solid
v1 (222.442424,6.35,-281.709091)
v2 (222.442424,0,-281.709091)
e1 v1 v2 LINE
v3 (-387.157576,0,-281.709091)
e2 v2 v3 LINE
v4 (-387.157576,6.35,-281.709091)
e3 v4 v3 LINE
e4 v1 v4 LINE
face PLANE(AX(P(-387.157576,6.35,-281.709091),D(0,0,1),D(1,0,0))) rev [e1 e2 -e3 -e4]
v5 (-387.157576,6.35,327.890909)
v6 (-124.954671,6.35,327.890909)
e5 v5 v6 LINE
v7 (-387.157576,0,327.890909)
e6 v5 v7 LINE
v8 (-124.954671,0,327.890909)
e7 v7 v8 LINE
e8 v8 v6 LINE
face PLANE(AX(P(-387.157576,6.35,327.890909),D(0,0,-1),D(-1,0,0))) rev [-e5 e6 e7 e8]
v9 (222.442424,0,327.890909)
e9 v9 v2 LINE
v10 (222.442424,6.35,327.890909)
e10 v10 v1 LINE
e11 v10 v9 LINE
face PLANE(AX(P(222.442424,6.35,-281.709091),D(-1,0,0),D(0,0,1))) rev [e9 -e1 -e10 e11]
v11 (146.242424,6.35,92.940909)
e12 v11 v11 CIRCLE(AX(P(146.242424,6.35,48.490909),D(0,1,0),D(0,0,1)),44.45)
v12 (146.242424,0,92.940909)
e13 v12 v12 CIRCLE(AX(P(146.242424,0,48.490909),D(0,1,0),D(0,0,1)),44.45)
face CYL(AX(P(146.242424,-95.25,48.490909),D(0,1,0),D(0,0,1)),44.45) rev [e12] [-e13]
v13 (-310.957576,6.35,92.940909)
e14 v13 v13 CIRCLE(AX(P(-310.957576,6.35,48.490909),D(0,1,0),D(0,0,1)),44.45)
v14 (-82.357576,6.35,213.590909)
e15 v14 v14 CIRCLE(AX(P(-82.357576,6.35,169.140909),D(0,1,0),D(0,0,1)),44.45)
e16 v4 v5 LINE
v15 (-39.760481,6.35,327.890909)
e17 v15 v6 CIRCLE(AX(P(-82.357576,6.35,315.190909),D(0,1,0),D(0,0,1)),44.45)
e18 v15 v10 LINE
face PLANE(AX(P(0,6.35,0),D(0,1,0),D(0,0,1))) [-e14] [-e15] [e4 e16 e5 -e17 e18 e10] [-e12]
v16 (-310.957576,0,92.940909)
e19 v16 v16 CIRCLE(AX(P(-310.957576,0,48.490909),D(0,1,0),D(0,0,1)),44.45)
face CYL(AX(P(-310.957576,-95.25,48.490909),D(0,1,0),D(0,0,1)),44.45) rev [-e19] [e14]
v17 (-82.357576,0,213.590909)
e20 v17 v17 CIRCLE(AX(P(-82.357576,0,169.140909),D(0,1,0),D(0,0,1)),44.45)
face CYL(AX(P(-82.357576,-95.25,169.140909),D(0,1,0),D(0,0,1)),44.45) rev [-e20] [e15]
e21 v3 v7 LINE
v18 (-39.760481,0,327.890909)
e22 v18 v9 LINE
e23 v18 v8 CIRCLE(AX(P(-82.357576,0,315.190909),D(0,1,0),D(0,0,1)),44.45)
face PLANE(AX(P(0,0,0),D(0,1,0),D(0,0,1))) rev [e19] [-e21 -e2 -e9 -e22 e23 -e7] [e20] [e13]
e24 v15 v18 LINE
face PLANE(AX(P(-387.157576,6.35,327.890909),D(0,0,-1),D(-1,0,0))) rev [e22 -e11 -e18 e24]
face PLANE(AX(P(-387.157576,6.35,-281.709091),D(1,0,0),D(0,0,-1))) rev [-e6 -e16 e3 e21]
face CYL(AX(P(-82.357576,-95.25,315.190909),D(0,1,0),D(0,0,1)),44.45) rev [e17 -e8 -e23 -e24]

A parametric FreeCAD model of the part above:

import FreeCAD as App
import Part
import Sketcher
Q = App.Units.Quantity

doc = App.newDocument("Part")
params = doc.addObject("Spreadsheet::Sheet", "Params")
for row, (alias, value) in enumerate([
    ("sketch1_width", "24 in"),
    ("pad1_length", "0.25 in"),
    ("sketch2_diameter", "3.5 in"),
    ("pocket1_length", "4 in"),
], start=1):
    params.set(f"A{row}", alias)
    params.set(f"B{row}", "=" + value)
    params.setAlias(f"B{row}", alias)

body = doc.addObject("PartDesign::Body", "Body")

# Sketch on XZ plane
sketch1 = body.newObject("Sketcher::SketchObject", "Sketch")
sketch1.AttachmentSupport = (doc.getObject("XZ_Plane"), [""])
sketch1.MapMode = "FlatFace"
sketch1.addGeometry([
    Part.LineSegment(App.Vector(-387, -282, 0), App.Vector(-387, 328, 0)),
    Part.LineSegment(App.Vector(-387, 328, 0), App.Vector(222, 328, 0)),
    Part.LineSegment(App.Vector(222, 328, 0), App.Vector(222, -282, 0)),
    Part.LineSegment(App.Vector(222, -282, 0), App.Vector(-387, -282, 0)),
], False)
sketch1.addConstraint([
    Sketcher.Constraint("Coincident", 0, 2, 1, 1),
    Sketcher.Constraint("Coincident", 1, 2, 2, 1),
    Sketcher.Constraint("Coincident", 2, 2, 3, 1),
    Sketcher.Constraint("Coincident", 3, 2, 0, 1),
    Sketcher.Constraint("Vertical", 0),
    Sketcher.Constraint("Horizontal", 1),
    Sketcher.Constraint("Vertical", 2),
    Sketcher.Constraint("Horizontal", 3),
    Sketcher.Constraint("Equal", 3, 0),
    Sketcher.Constraint("DistanceX", 1, 1, 1, 2, Q("24 in")),
    Sketcher.Constraint("DistanceY", -1, 1, 0, 2, 327.890909),
    Sketcher.Constraint("DistanceX", 0, 2, -1, 1, 387.157576),
])
sketch1.setExpression("Constraints[9]", "Params.sketch1_width")
pad1 = body.newObject("PartDesign::Pad", "Pad")
pad1.Profile = sketch1
pad1.setExpression("Length", "Params.pad1_length")
pad1.Reversed = True

# Sketch on XZ plane
sketch2 = body.newObject("Sketcher::SketchObject", "Sketch001")
sketch2.AttachmentSupport = (doc.getObject("XZ_Plane"), [""])
sketch2.MapMode = "FlatFace"
sketch2.AttachmentOffset = App.Placement(App.Vector(0, 0, -0.25 * 25.4), App.Rotation())
sketch2.addGeometry([
    Part.Circle(App.Vector(-82, 169, 0), App.Vector(0, 0, 1), 44),
    Part.Circle(App.Vector(-82, 315, 0), App.Vector(0, 0, 1), 44),
    Part.Circle(App.Vector(-311, 48, 0), App.Vector(0, 0, 1), 44),
    Part.Circle(App.Vector(146, 48, 0), App.Vector(0, 0, 1), 44),
], False)
sketch2.addConstraint([
    Sketcher.Constraint("Equal", 0, 1),
    Sketcher.Constraint("Equal", 1, 2),
    Sketcher.Constraint("Equal", 2, 3),
    Sketcher.Constraint("Horizontal", 2, 3, 3, 3),
    Sketcher.Constraint("Vertical", 0, 3, 1, 3),
    Sketcher.Constraint("Diameter", 0, Q("3.5 in")),
    Sketcher.Constraint("DistanceX", 2, 3, 0, 3, Q("9 in")),
    Sketcher.Constraint("DistanceX", 0, 3, 3, 3, Q("9 in")),
    Sketcher.Constraint("DistanceY", 2, 3, 1, 3, Q("10.5 in")),
    Sketcher.Constraint("DistanceY", 0, 3, 1, 3, Q("5.75 in")),
    Sketcher.Constraint("DistanceY", -1, 1, 0, 3, 169.140909),
    Sketcher.Constraint("DistanceX", 0, 3, -1, 1, 82.357576),
])
sketch2.setExpression("Constraints[5]", "Params.sketch2_diameter")
pocket1 = body.newObject("PartDesign::Pocket", "Pocket")
pocket1.Profile = sketch2
pocket1.setExpression("Length", "Params.pocket1_length")
pocket1.Reversed = True

doc.recompute()
